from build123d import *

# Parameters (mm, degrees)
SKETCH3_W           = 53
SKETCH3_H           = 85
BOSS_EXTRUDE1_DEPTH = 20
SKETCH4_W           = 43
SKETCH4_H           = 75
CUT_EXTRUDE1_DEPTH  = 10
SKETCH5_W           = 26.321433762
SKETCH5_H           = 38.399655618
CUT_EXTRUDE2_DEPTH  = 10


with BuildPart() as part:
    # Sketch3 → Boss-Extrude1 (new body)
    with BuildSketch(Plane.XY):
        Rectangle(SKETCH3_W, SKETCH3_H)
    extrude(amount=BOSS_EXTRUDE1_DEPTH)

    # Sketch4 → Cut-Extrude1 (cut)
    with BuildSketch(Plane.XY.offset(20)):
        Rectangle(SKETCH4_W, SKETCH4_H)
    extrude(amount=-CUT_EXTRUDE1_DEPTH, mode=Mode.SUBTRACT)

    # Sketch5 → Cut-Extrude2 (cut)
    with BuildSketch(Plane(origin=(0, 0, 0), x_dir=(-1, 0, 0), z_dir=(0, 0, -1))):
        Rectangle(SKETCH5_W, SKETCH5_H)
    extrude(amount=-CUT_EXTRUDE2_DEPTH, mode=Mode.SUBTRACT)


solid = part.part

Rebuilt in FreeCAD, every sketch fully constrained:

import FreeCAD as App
import Part
import Sketcher
from FreeCAD import Vector


def add_polygon(sketch, points):
    """Adds a closed chain of lines whose ends are joined by coincident constraints."""
    first, n = sketch.GeometryCount, len(points)
    for a, b in zip(points, points[1:] + points[:1]):
        sketch.addGeometry(Part.LineSegment(App.Vector(*a, 0), App.Vector(*b, 0)), False)
    for i in range(n):
        sketch.addConstraint(Sketcher.Constraint("Coincident", first + i, 2, first + (i + 1) % n, 1))

doc = App.newDocument("Part")
body = doc.addObject("PartDesign::Body", "Body")

# Sketch on XY plane
sketch1 = body.newObject("Sketcher::SketchObject", "Sketch")
sketch1.AttachmentSupport = (doc.getObject("XY_Plane"), [""])
sketch1.MapMode = "FlatFace"
add_polygon(sketch1, [(-26, 42), (-26, -42), (26, -42), (26, 42)])  # lines 0-3
sketch1.addConstraint(Sketcher.Constraint("Vertical", 0))
sketch1.addConstraint(Sketcher.Constraint("Horizontal", 1))
sketch1.addConstraint(Sketcher.Constraint("Vertical", 2))
sketch1.addConstraint(Sketcher.Constraint("Horizontal", 3))
sketch1.addConstraint(Sketcher.Constraint("Symmetric", 0, 2, 2, 2, -1, 1))
sketch1.addConstraint(Sketcher.Constraint("DistanceX", 1, 1, 1, 2, 53.0))
sketch1.addConstraint(Sketcher.Constraint("DistanceY", 0, 2, 0, 1, 85.0))
pad1 = body.newObject("PartDesign::Pad", "Pad")
pad1.Profile = sketch1
pad1.Length = 20

# Sketch on XY plane
sketch2 = body.newObject("Sketcher::SketchObject", "Sketch001")
sketch2.AttachmentSupport = (doc.getObject("XY_Plane"), [""])
sketch2.MapMode = "FlatFace"
sketch2.AttachmentOffset = App.Placement(Vector(0, 0, 20), App.Rotation())
add_polygon(sketch2, [(-22, 38), (-22, -38), (22, -38), (22, 38)])  # lines 0-3
sketch2.addConstraint(Sketcher.Constraint("Vertical", 0))
sketch2.addConstraint(Sketcher.Constraint("Horizontal", 1))
sketch2.addConstraint(Sketcher.Constraint("Vertical", 2))
sketch2.addConstraint(Sketcher.Constraint("Horizontal", 3))
sketch2.addConstraint(Sketcher.Constraint("Symmetric", 0, 2, 2, 2, -1, 1))
sketch2.addConstraint(Sketcher.Constraint("DistanceX", 1, 1, 1, 2, 43.0))
sketch2.addConstraint(Sketcher.Constraint("DistanceY", 0, 2, 0, 1, 75.0))
pocket1 = body.newObject("PartDesign::Pocket", "Pocket")
pocket1.Profile = sketch2
pocket1.Length = 10

# Sketch on XY plane
sketch3 = body.newObject("Sketcher::SketchObject", "Sketch002")
sketch3.AttachmentSupport = (doc.getObject("XY_Plane"), [""])
sketch3.MapMode = "FlatFace"
add_polygon(sketch3, [(13, 19), (13, -19), (-13, -19), (-13, 19)])  # lines 0-3
sketch3.addConstraint(Sketcher.Constraint("Vertical", 0))
sketch3.addConstraint(Sketcher.Constraint("Horizontal", 1))
sketch3.addConstraint(Sketcher.Constraint("Vertical", 2))
sketch3.addConstraint(Sketcher.Constraint("Horizontal", 3))
sketch3.addConstraint(Sketcher.Constraint("Symmetric", 0, 2, 2, 2, -1, 1))
sketch3.addConstraint(Sketcher.Constraint("DistanceX", 1, 2, 1, 1, 26.321434))
sketch3.addConstraint(Sketcher.Constraint("DistanceY", 0, 2, 0, 1, 38.399656))
pocket2 = body.newObject("PartDesign::Pocket", "Pocket001")
pocket2.Profile = sketch3
pocket2.Length = 10
pocket2.Reversed = True

doc.recompute()
